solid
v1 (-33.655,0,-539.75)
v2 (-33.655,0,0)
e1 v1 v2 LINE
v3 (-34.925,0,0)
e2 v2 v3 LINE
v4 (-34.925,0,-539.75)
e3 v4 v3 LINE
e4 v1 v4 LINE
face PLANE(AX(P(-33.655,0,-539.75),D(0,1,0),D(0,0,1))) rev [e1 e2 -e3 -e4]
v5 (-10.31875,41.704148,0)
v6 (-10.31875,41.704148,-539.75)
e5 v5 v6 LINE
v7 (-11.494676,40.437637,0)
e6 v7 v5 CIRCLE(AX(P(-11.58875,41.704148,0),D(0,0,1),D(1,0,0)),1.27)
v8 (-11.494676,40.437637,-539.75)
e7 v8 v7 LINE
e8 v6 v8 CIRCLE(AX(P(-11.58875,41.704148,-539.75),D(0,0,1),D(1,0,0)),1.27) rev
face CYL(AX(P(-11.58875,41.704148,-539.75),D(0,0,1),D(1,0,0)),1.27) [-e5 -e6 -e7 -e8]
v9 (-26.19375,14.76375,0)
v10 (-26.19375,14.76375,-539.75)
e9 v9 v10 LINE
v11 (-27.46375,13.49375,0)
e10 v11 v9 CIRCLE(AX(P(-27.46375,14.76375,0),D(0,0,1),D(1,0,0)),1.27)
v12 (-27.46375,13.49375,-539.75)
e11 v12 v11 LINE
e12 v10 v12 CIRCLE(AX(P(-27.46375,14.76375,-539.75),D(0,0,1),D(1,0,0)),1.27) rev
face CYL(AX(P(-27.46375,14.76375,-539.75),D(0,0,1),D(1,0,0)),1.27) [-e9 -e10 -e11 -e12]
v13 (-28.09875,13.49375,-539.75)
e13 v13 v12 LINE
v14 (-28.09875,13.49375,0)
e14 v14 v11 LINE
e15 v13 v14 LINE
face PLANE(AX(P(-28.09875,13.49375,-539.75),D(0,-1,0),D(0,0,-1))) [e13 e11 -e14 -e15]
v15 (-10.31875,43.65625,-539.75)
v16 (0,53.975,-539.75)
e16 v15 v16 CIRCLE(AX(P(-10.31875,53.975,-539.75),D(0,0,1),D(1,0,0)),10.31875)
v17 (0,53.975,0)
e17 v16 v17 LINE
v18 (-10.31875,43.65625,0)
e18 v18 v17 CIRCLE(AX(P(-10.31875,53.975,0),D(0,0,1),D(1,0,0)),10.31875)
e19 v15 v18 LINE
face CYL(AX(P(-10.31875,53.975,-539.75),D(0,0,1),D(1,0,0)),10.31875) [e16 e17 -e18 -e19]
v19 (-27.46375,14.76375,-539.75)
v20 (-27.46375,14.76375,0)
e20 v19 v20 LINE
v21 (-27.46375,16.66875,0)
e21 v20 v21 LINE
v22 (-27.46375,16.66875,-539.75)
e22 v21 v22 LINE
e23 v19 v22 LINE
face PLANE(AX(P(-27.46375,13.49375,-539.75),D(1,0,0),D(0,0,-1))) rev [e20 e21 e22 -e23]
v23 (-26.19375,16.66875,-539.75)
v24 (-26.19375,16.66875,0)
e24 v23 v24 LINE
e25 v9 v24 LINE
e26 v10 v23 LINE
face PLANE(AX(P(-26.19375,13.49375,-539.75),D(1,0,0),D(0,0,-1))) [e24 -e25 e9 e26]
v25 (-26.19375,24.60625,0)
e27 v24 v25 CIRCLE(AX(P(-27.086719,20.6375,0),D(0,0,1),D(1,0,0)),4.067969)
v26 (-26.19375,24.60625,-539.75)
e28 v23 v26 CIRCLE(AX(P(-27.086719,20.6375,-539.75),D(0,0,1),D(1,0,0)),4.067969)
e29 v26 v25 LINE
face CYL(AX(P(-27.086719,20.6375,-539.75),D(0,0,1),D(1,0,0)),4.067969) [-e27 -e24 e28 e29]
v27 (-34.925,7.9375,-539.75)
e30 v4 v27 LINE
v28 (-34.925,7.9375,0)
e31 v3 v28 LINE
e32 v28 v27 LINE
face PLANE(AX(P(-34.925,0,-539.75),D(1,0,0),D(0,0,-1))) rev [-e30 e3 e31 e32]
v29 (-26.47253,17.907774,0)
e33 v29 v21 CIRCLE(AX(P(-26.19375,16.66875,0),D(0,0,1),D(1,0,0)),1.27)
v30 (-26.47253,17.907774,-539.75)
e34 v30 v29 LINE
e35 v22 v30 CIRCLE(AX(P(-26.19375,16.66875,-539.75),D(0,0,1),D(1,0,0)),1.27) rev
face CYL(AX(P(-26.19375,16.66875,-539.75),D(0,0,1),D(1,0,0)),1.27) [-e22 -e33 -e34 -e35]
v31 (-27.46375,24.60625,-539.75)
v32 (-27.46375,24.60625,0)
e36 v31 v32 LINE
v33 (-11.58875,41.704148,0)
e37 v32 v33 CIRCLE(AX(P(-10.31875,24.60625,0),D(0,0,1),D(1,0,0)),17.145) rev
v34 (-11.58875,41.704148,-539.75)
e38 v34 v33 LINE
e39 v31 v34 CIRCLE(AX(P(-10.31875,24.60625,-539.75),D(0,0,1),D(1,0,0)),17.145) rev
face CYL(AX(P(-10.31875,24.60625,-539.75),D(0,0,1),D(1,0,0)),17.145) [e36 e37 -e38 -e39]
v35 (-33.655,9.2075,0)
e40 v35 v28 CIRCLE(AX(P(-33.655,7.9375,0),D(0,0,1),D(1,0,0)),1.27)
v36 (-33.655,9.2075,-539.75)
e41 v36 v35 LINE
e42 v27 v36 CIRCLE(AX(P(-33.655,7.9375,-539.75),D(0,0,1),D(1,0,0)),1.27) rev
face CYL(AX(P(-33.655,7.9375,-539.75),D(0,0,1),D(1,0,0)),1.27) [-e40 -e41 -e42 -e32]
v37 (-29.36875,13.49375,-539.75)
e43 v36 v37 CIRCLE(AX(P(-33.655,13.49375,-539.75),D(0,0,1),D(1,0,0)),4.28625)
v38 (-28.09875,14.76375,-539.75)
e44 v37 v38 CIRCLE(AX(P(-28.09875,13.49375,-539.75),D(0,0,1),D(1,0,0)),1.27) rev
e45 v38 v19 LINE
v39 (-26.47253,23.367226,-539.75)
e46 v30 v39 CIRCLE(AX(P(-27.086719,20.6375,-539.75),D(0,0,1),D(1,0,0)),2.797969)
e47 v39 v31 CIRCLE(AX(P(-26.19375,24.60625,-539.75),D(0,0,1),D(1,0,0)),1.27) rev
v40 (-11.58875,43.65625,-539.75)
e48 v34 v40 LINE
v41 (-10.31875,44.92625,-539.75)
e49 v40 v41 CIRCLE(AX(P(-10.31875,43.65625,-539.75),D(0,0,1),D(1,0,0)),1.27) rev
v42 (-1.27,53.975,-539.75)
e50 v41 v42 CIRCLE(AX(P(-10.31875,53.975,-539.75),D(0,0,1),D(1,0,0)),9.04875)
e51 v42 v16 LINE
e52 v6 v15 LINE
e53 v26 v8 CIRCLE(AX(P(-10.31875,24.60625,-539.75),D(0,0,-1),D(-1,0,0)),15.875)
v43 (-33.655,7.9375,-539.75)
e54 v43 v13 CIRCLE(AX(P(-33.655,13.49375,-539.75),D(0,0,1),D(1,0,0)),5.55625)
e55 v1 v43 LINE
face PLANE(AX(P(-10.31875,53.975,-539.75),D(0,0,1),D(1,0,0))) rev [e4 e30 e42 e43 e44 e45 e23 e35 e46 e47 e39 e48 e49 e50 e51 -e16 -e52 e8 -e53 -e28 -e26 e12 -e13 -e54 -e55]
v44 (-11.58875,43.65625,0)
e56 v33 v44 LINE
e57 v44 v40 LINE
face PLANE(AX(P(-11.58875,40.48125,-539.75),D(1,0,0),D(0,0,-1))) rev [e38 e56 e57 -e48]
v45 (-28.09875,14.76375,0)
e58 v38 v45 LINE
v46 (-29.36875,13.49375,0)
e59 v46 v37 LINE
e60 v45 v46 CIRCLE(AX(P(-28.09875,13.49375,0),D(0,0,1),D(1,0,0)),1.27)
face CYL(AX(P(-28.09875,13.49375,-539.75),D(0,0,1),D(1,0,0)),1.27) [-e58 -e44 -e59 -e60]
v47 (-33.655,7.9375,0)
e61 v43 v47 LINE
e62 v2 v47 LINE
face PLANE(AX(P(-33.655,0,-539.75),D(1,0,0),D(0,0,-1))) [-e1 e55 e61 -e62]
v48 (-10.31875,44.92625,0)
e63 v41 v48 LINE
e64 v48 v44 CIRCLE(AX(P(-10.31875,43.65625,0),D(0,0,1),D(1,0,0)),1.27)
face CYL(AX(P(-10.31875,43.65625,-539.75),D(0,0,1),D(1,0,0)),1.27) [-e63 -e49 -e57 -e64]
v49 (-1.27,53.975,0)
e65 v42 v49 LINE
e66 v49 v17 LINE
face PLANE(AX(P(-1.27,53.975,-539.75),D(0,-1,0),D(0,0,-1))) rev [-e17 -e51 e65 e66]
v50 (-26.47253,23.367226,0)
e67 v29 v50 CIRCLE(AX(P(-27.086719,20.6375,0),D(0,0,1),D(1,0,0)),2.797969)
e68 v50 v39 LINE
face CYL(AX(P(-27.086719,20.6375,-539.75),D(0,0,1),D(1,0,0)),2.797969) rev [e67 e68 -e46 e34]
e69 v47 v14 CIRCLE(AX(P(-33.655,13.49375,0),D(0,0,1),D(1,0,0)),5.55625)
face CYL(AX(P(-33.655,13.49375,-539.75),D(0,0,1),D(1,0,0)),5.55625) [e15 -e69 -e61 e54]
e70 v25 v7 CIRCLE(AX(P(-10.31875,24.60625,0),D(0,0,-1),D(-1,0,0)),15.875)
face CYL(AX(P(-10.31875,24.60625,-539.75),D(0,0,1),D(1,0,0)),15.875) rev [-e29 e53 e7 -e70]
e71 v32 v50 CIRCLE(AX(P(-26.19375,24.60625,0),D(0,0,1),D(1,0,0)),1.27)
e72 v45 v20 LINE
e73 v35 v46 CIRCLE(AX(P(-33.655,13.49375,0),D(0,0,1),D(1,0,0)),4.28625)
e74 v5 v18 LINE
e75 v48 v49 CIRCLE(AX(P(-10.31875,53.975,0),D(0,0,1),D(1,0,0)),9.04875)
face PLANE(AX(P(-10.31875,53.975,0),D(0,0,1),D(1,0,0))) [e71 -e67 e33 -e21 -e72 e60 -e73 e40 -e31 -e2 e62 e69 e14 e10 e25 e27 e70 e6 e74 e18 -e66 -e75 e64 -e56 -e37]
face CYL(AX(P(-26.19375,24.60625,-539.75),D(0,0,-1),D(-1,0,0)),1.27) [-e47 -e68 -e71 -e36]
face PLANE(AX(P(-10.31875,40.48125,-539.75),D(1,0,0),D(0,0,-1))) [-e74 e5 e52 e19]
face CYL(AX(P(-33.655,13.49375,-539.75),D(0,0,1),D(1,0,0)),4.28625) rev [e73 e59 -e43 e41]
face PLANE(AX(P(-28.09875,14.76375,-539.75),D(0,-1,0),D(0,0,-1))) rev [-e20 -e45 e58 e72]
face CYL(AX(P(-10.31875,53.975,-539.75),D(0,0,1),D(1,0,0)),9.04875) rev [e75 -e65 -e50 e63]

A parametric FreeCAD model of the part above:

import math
import FreeCAD as App
import Part
import Sketcher

V = App.Vector
Q = App.Units.Quantity


def edges_at(feature, points):
    """Names of the edges that pass closest to the given points."""
    edges = feature.Shape.Edges
    near = lambda p: min(range(len(edges)), key=lambda i: edges[i].distToShape(Part.Vertex(*p))[0])
    return sorted({f"Edge{near(p) + 1}" for p in points})

doc = App.newDocument("Part")
body = doc.addObject("PartDesign::Body", "Body")

# Sketch on XY plane
sketch1 = doc.addObject("Sketcher::SketchObject", "Sketch")
body.addObject(sketch1)
sketch1.AttachmentSupport = (doc.XY_Plane, [""])
sketch1.MapMode = "FlatFace"
sketch1.addGeometry([
    Part.LineSegment(V(-33.7, 0, 0), V(-33.7, 7.9, 0)),  # 0
    Part.ArcOfCircle(Part.Circle(V(-33.7, 13.5, 0), V(0, 0, 1), 5.6), math.radians(-90), math.radians(0)),  # 1
    Part.LineSegment(V(-28.1, 13.5, 0), V(-26.2, 13.5, 0)),  # 2
    Part.LineSegment(V(-26.2, 13.5, 0), V(-26.2, 16.7, 0)),  # 3
    Part.ArcOfCircle(Part.Circle(V(-27.1, 20.6, 0), V(0, 0, 1), 4.1), math.radians(-77), math.radians(77)),  # 4
    Part.ArcOfCircle(Part.Circle(V(-10.3, 24.6, 0), V(0, 0, 1), 15.9), math.radians(90), math.radians(180)),  # 5
    Part.LineSegment(V(-10.3, 40.5, 0), V(-10.3, 43.7, 0)),  # 6
    Part.ArcOfCircle(Part.Circle(V(-10.3, 54, 0), V(0, 0, 1), 10.3), math.radians(-90), math.radians(0)),  # 7
    Part.LineSegment(V(0, 54, 0), V(-1.3, 54, 0)),  # 8
    Part.ArcOfCircle(Part.Circle(V(-10.3, 54, 0), V(0, 0, 1), 9), math.radians(-98), math.radians(0)),  # 9
    Part.LineSegment(V(-11.6, 45, 0), V(-11.6, 41.7, 0)),  # 10
    Part.ArcOfCircle(Part.Circle(V(-10.3, 24.6, 0), V(0, 0, 1), 17.1), math.radians(94), math.radians(184)),  # 11
    Part.ArcOfCircle(Part.Circle(V(-27.1, 20.6, 0), V(0, 0, 1), 2.8), math.radians(-98), math.radians(97)),  # 12
    Part.LineSegment(V(-27.5, 17.9, 0), V(-27.5, 14.8, 0)),  # 13
    Part.LineSegment(V(-27.5, 14.8, 0), V(-29.6, 14.8, 0)),  # 14
    Part.ArcOfCircle(Part.Circle(V(-33.7, 13.5, 0), V(0, 0, 1), 4.3), math.radians(-107), math.radians(17)),  # 15
    Part.LineSegment(V(-34.9, 9.4, 0), V(-34.9, 0, 0)),  # 16
    Part.LineSegment(V(-34.9, 0, 0), V(-33.7, 0, 0)),  # 17
], False)
sketch1.addConstraint([
    Sketcher.Constraint("Coincident", 0, 2, 1, 1),
    Sketcher.Constraint("Coincident", 1, 2, 2, 1),
    Sketcher.Constraint("Coincident", 2, 2, 3, 1),
    Sketcher.Constraint("Coincident", 3, 2, 4, 1),
    Sketcher.Constraint("Coincident", 4, 2, 5, 2),
    Sketcher.Constraint("Coincident", 5, 1, 6, 1),
    Sketcher.Constraint("Coincident", 6, 2, 7, 1),
    Sketcher.Constraint("Coincident", 7, 2, 8, 1),
    Sketcher.Constraint("Coincident", 8, 2, 9, 2),
    Sketcher.Constraint("Coincident", 9, 1, 10, 1),
    Sketcher.Constraint("Coincident", 10, 2, 11, 1),
    Sketcher.Constraint("Coincident", 11, 2, 12, 2),
    Sketcher.Constraint("Coincident", 12, 1, 13, 1),
    Sketcher.Constraint("Coincident", 13, 2, 14, 1),
    Sketcher.Constraint("Coincident", 14, 2, 15, 2),
    Sketcher.Constraint("Coincident", 15, 1, 16, 1),
    Sketcher.Constraint("Coincident", 16, 2, 17, 1),
    Sketcher.Constraint("Coincident", 17, 2, 0, 1),
    Sketcher.Constraint("Vertical", 0),
    Sketcher.Constraint("Horizontal", 2),
    Sketcher.Constraint("Vertical", 3),
    Sketcher.Constraint("Vertical", 6),
    Sketcher.Constraint("Horizontal", 8),
    Sketcher.Constraint("Vertical", 10),
    Sketcher.Constraint("Vertical", 13),
    Sketcher.Constraint("Horizontal", 14),
    Sketcher.Constraint("Vertical", 16),
    Sketcher.Constraint("Horizontal", 17),
    Sketcher.Constraint("Coincident", 9, 3, 7, 3),
    Sketcher.Constraint("Coincident", 11, 3, 5, 3),
    Sketcher.Constraint("Coincident", 12, 3, 4, 3),
    Sketcher.Constraint("Coincident", 15, 3, 1, 3),
    Sketcher.Constraint("PointOnObject", 7, 2, -2),
    Sketcher.Constraint("PointOnObject", 16, 2, -1),
    Sketcher.Constraint("Horizontal", 15, 3, 1, 2),
    Sketcher.Constraint("Horizontal", 11, 3, 4, 2),
    Sketcher.Constraint("Horizontal", 9, 3, 7, 2),
    Sketcher.Constraint("Vertical", 5, 3, 7, 3),
    Sketcher.Constraint("Vertical", 15, 3, 0, 2),
    Sketcher.Constraint("Vertical", 3, 2, 4, 2),
    Sketcher.Constraint("Vertical", 11, 3, 5, 1),
    Sketcher.Constraint("Equal", 8, 17),
    Sketcher.Constraint("Equal", 3, 6),
    Sketcher.Constraint("Radius", 1, Q("0.21875 in")),
    Sketcher.Constraint("Radius", 5, Q("0.625 in")),
    Sketcher.Constraint("Radius", 7, Q("0.40625 in")),
    Sketcher.Constraint("Radius", 11, Q("0.675 in")),
    Sketcher.Constraint("DistanceX", 8, 2, 8, 1, Q("0.05 in")),
    Sketcher.Constraint("DistanceY", 0, 2, 12, 3, Q("0.5 in")),
    Sketcher.Constraint("DistanceX", 2, 1, 2, 2, Q("0.075 in")),
    Sketcher.Constraint("DistanceY", 0, 1, 0, 2, Q("0.3125 in")),
    Sketcher.Constraint("DistanceY", 3, 1, 3, 2, Q("0.125 in")),
    Sketcher.Constraint("DistanceX", 9, 1, 6, 2, Q("0.05 in")),
    Sketcher.Constraint("DistanceX", 12, 1, 3, 2, Q("0.05 in")),
    Sketcher.Constraint("DistanceY", 1, 2, 13, 2, Q("0.05 in")),
    Sketcher.Constraint("Radius", 4, 4.067969),
    Sketcher.Constraint("Radius", 12, 2.797969),
    Sketcher.Constraint("Radius", 15, 4.286251),
])
pad1 = doc.addObject("PartDesign::Pad", "Pad")
body.addObject(pad1)
pad1.Profile = sketch1
pad1.Length = Q("21.25 in")
pad1.Reversed = True
doc.recompute()

fillet = doc.addObject("PartDesign::Fillet", "Fillet")
body.addObject(fillet)
fillet.Base = (pad1, edges_at(pad1, [
    (-10.319, 40.481, -269.875),
    (-26.194, 13.494, -269.875),
    (-34.925, 9.4, -269.875),
    (-29.561, 14.764, -269.875),
    (-27.464, 17.865, -269.875),
    (-27.422, 23.415, -269.875),
    (-11.589, 45.016, -269.875),
]))
fillet.Radius = Q("0.05 in")

doc.recompute()
